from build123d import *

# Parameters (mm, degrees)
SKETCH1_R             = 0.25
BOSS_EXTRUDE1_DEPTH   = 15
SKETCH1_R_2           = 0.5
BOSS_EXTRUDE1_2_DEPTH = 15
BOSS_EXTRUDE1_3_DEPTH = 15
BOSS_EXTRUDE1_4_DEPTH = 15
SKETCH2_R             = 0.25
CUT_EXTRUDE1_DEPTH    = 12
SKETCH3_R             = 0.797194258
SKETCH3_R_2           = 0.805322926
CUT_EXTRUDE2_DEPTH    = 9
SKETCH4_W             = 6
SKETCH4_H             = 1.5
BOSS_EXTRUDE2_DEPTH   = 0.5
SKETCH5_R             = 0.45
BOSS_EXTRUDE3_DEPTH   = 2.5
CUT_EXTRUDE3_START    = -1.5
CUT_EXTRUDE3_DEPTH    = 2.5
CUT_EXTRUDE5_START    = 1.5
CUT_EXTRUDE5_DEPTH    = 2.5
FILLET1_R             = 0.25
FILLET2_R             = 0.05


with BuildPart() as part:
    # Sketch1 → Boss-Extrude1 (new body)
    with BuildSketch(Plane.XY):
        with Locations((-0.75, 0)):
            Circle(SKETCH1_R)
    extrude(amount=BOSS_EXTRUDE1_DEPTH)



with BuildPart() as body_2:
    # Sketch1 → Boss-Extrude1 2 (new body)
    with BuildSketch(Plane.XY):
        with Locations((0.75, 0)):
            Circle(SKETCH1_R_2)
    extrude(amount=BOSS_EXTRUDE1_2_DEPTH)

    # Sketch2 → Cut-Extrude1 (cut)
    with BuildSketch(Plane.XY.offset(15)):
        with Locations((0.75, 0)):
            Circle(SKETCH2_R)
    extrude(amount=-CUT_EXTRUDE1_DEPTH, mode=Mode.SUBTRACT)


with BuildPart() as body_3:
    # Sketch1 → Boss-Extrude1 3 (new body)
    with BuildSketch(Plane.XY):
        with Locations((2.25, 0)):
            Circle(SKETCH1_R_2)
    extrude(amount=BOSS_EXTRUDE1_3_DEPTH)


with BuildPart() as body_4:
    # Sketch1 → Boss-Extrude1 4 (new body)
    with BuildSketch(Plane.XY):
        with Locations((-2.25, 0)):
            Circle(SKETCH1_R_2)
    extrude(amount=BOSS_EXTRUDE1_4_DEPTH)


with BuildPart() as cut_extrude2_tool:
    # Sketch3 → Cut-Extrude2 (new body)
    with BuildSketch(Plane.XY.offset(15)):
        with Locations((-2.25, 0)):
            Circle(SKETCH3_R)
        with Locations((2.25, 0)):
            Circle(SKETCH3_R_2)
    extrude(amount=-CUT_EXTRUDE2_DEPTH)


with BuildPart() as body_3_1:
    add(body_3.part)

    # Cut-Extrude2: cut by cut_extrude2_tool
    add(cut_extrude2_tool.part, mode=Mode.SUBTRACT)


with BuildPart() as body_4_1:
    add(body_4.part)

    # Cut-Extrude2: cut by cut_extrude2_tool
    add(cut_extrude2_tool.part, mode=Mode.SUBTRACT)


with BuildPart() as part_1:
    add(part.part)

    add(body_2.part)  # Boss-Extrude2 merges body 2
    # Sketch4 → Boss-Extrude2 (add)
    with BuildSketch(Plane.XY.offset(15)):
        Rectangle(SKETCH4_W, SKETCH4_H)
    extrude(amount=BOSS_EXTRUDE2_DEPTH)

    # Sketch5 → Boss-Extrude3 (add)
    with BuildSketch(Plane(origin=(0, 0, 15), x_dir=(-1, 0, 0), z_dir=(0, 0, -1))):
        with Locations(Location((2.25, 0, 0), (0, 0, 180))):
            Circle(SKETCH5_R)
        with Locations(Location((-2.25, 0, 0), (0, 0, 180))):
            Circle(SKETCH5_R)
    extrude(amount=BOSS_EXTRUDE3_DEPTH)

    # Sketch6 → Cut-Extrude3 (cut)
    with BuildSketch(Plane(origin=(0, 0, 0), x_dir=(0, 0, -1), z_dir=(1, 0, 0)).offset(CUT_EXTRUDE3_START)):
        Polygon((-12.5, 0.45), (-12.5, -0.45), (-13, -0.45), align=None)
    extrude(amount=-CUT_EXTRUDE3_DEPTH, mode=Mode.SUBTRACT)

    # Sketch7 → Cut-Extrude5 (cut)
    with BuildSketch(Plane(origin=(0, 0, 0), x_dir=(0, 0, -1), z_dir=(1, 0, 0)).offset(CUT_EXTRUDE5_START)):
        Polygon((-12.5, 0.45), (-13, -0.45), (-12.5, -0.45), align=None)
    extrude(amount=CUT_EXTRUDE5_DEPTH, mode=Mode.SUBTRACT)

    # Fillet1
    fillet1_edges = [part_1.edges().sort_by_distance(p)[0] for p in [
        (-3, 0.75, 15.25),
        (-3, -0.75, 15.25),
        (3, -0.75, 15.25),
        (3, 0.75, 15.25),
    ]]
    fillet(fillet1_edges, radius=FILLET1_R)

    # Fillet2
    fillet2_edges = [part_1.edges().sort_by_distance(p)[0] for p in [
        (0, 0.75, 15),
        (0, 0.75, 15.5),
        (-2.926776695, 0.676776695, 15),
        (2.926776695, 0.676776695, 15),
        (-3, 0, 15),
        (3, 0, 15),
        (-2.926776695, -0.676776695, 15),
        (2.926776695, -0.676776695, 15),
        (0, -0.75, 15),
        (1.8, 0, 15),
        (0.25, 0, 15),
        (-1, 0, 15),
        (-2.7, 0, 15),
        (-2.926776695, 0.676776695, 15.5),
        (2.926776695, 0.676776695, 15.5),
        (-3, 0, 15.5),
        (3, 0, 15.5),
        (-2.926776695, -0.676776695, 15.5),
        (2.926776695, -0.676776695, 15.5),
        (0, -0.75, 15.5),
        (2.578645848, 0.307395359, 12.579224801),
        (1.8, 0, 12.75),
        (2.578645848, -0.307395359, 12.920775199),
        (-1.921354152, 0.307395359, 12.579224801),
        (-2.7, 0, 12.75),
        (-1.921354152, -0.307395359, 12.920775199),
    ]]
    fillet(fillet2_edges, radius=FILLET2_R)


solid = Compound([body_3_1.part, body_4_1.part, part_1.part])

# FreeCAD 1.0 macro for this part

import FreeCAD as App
import Part
import Sketcher

V = App.Vector
Q = App.Units.Quantity


def edges_at(feature, points):
    """Names of the edges that pass closest to the given points."""
    edges = feature.Shape.Edges
    near = lambda p: min(range(len(edges)), key=lambda i: edges[i].distToShape(Part.Vertex(*p))[0])
    return sorted({f"Edge{near(p) + 1}" for p in points})


def add_polygon(sketch, points):
    """Adds a closed chain of lines whose ends are joined by coincident constraints."""
    first, n = sketch.GeometryCount, len(points)
    for a, b in zip(points, points[1:] + points[:1]):
        sketch.addGeometry(Part.LineSegment(App.Vector(*a, 0), App.Vector(*b, 0)), False)
    for i in range(n):
        sketch.addConstraint(Sketcher.Constraint("Coincident", first + i, 2, first + (i + 1) % n, 1))

doc = App.newDocument("Part")
body = doc.addObject("PartDesign::Body", "Body")

sketch1 = body.newObject("Sketcher::SketchObject", "Sketch")
sketch1.AttachmentSupport = (doc.getObject("XY_Plane"), [""])
sketch1.MapMode = "FlatFace"
sketch1.addGeometry(Part.Circle(V(-0.75, 0, 0), V(0, 0, 1), 0.25), False)
sketch1.addConstraint(Sketcher.Constraint("PointOnObject", 0, 3, -1))
sketch1.addConstraint(Sketcher.Constraint("Diameter", 0, Q("0.5 mm")))
sketch1.addConstraint(Sketcher.Constraint("DistanceX", 0, 3, -1, 1, Q("0.75 mm")))
pad1 = body.newObject("PartDesign::Pad", "Pad")
pad1.Profile = sketch1
pad1.Length = 15
body2 = doc.addObject("PartDesign::Body", "Body001")

sketch2 = body2.newObject("Sketcher::SketchObject", "Sketch001")
sketch2.AttachmentSupport = (doc.getObject("XY_Plane001"), [""])
sketch2.MapMode = "FlatFace"
sketch2.addGeometry(Part.Circle(V(0.75, 0, 0), V(0, 0, 1), 0.5), False)
sketch2.addConstraint(Sketcher.Constraint("PointOnObject", 0, 3, -1))
sketch2.addConstraint(Sketcher.Constraint("Diameter", 0, Q("1 mm")))
sketch2.addConstraint(Sketcher.Constraint("DistanceX", -1, 1, 0, 3, Q("0.75 mm")))
pad2 = body2.newObject("PartDesign::Pad", "Pad001")
pad2.Profile = sketch2
pad2.Length = 15

sketch3 = body2.newObject("Sketcher::SketchObject", "Sketch002")
sketch3.AttachmentSupport = (doc.getObject("XY_Plane001"), [""])
sketch3.MapMode = "FlatFace"
sketch3.AttachmentOffset = App.Placement(V(0, 0, 15), App.Rotation())
sketch3.addGeometry(Part.Circle(V(0.75, 0, 0), V(0, 0, 1), 0.25), False)
sketch3.addConstraint(Sketcher.Constraint("PointOnObject", 0, 3, -1))
sketch3.addConstraint(Sketcher.Constraint("Diameter", 0, Q("0.5 mm")))
sketch3.addConstraint(Sketcher.Constraint("DistanceX", -1, 1, 0, 3, Q("0.75 mm")))
pocket1 = body2.newObject("PartDesign::Pocket", "Pocket")
pocket1.Profile = sketch3
pocket1.Length = 12
body3 = doc.addObject("PartDesign::Body", "Body002")

sketch4 = body3.newObject("Sketcher::SketchObject", "Sketch003")
sketch4.AttachmentSupport = (doc.getObject("XY_Plane002"), [""])
sketch4.MapMode = "FlatFace"
sketch4.addGeometry(Part.Circle(V(2.25, 0, 0), V(0, 0, 1), 0.5), False)
sketch4.addConstraint(Sketcher.Constraint("PointOnObject", 0, 3, -1))
sketch4.addConstraint(Sketcher.Constraint("Diameter", 0, Q("1 mm")))
sketch4.addConstraint(Sketcher.Constraint("DistanceX", -1, 1, 0, 3, Q("2.25 mm")))
pad3 = body3.newObject("PartDesign::Pad", "Pad002")
pad3.Profile = sketch4
pad3.Length = 15
body4 = doc.addObject("PartDesign::Body", "Body003")

sketch5 = body4.newObject("Sketcher::SketchObject", "Sketch004")
sketch5.AttachmentSupport = (doc.getObject("XY_Plane003"), [""])
sketch5.MapMode = "FlatFace"
sketch5.addGeometry(Part.Circle(V(-2.25, 0, 0), V(0, 0, 1), 0.5), False)
sketch5.addConstraint(Sketcher.Constraint("PointOnObject", 0, 3, -1))
sketch5.addConstraint(Sketcher.Constraint("Diameter", 0, Q("1 mm")))
sketch5.addConstraint(Sketcher.Constraint("DistanceX", 0, 3, -1, 1, Q("2.25 mm")))
pad4 = body4.newObject("PartDesign::Pad", "Pad003")
pad4.Profile = sketch5
pad4.Length = 15
body5 = doc.addObject("PartDesign::Body", "Body004")
body5.AllowCompound = True

sketch6 = body5.newObject("Sketcher::SketchObject", "Sketch005")
sketch6.AttachmentSupport = (doc.getObject("XY_Plane004"), [""])
sketch6.MapMode = "FlatFace"
sketch6.AttachmentOffset = App.Placement(V(0, 0, 15), App.Rotation())
sketch6.addGeometry(Part.Circle(V(-2.25, 0, 0), V(0, 0, 1), 0.797194), False)
sketch6.addGeometry(Part.Circle(V(2.25, 0, 0), V(0, 0, 1), 0.805323), False)
sketch6.addConstraint(Sketcher.Constraint("Symmetric", 0, 3, 1, 3, -1, 1))
sketch6.addConstraint(Sketcher.Constraint("PointOnObject", 0, 3, -1))
sketch6.addConstraint(Sketcher.Constraint("DistanceX", 0, 3, 1, 3, Q("4.5 mm")))
sketch6.addConstraint(Sketcher.Constraint("Diameter", 0, Q("1.594389 mm")))
sketch6.addConstraint(Sketcher.Constraint("Diameter", 1, Q("1.610646 mm")))
pad5 = body5.newObject("PartDesign::Pad", "Pad004")
pad5.Profile = sketch6
pad5.Length = 9
pad5.Reversed = True
doc.recompute()

body6 = doc.addObject("PartDesign::Body", "Body005")
body6.BaseFeature = body5
boolean = body3.newObject("PartDesign::Boolean", "Boolean")
boolean.Type = "Cut"
boolean.addObjects([body6])
doc.recompute()

boolean2 = body4.newObject("PartDesign::Boolean", "Boolean001")
boolean2.Type = "Cut"
boolean2.addObjects([body5])
body.AllowCompound = True
doc.recompute()

boolean3 = body.newObject("PartDesign::Boolean", "Boolean002")
boolean3.Type = "Fuse"
boolean3.addObjects([body2])

sketch7 = body.newObject("Sketcher::SketchObject", "Sketch006")
sketch7.AttachmentSupport = (doc.getObject("XY_Plane"), [""])
sketch7.MapMode = "FlatFace"
sketch7.AttachmentOffset = App.Placement(V(0, 0, 15), App.Rotation())
add_polygon(sketch7, [(-3, 0.75), (-3, -0.75), (3, -0.75), (3, 0.75)])
sketch7.addConstraint(Sketcher.Constraint("Vertical", 0))
sketch7.addConstraint(Sketcher.Constraint("Horizontal", 1))
sketch7.addConstraint(Sketcher.Constraint("Vertical", 2))
sketch7.addConstraint(Sketcher.Constraint("Horizontal", 3))
sketch7.addConstraint(Sketcher.Constraint("Symmetric", 0, 2, 2, 2, -1, 1))
sketch7.addConstraint(Sketcher.Constraint("DistanceX", 1, 1, 1, 2, Q("6 mm")))
sketch7.addConstraint(Sketcher.Constraint("DistanceY", 0, 2, 0, 1, Q("1.5 mm")))
pad6 = body.newObject("PartDesign::Pad", "Pad005")
pad6.Profile = sketch7
pad6.Length = 0.5

sketch8 = body.newObject("Sketcher::SketchObject", "Sketch007")
sketch8.AttachmentSupport = (doc.getObject("XY_Plane"), [""])
sketch8.MapMode = "FlatFace"
sketch8.AttachmentOffset = App.Placement(V(0, 0, 15), App.Rotation())
sketch8.addGeometry(Part.Circle(V(-2.25, 0, 0), V(0, 0, 1), 0.45), False)
sketch8.addGeometry(Part.Circle(V(2.25, 0, 0), V(0, 0, 1), 0.45), False)
sketch8.addConstraint(Sketcher.Constraint("Equal", 0, 1))
sketch8.addConstraint(Sketcher.Constraint("Symmetric", 0, 3, 1, 3, -1, 1))
sketch8.addConstraint(Sketcher.Constraint("PointOnObject", 0, 3, -1))
sketch8.addConstraint(Sketcher.Constraint("Diameter", 0, Q("0.9 mm")))
sketch8.addConstraint(Sketcher.Constraint("DistanceX", 0, 3, 1, 3, Q("4.5 mm")))
pad7 = body.newObject("PartDesign::Pad", "Pad006")
pad7.Profile = sketch8
pad7.Length = 2.5
pad7.Reversed = True

sketch9 = body.newObject("Sketcher::SketchObject", "Sketch008")
sketch9.AttachmentSupport = (doc.getObject("YZ_Plane"), [""])
sketch9.MapMode = "FlatFace"
sketch9.AttachmentOffset = App.Placement(V(0, 0, -1.5), App.Rotation())
add_polygon(sketch9, [(-0.45, 12.5), (0.45, 12.5), (-0.45, 13)])
sketch9.addConstraint(Sketcher.Constraint("Horizontal", 0))
sketch9.addConstraint(Sketcher.Constraint("Vertical", 2))
sketch9.addConstraint(Sketcher.Constraint("DistanceX", 0, 1, 0, 2, Q("0.9 mm")))
sketch9.addConstraint(Sketcher.Constraint("DistanceY", 2, 2, 2, 1, Q("0.5 mm")))
sketch9.addConstraint(Sketcher.Constraint("DistanceY", -1, 1, 1, 2, Q("13 mm")))
sketch9.addConstraint(Sketcher.Constraint("DistanceX", -1, 1, 0, 2, Q("0.45 mm")))
pocket2 = body.newObject("PartDesign::Pocket", "Pocket001")
pocket2.Profile = sketch9
pocket2.Length = 2.5

sketch10 = body.newObject("Sketcher::SketchObject", "Sketch009")
sketch10.AttachmentSupport = (doc.getObject("YZ_Plane"), [""])
sketch10.MapMode = "FlatFace"
sketch10.AttachmentOffset = App.Placement(V(0, 0, 1.5), App.Rotation())
add_polygon(sketch10, [(0.45, 12.5), (-0.45, 13), (-0.45, 12.5)])
sketch10.addConstraint(Sketcher.Constraint("Vertical", 1))
sketch10.addConstraint(Sketcher.Constraint("Horizontal", 2))
sketch10.addConstraint(Sketcher.Constraint("DistanceX", 2, 1, 2, 2, Q("0.9 mm")))
sketch10.addConstraint(Sketcher.Constraint("DistanceY", 1, 2, 1, 1, Q("0.5 mm")))
sketch10.addConstraint(Sketcher.Constraint("DistanceY", -1, 1, 0, 2, Q("13 mm")))
sketch10.addConstraint(Sketcher.Constraint("DistanceX", 0, 2, -1, 1, Q("0.45 mm")))
pocket3 = body.newObject("PartDesign::Pocket", "Pocket002")
pocket3.Profile = sketch10
pocket3.Length = 2.5
pocket3.Reversed = True
doc.recompute()

fillet = body.newObject("PartDesign::Fillet", "Fillet")
fillet.Base = (pocket3, edges_at(pocket3, [
    (-3, 0.75, 15.25),
    (-3, -0.75, 15.25),
    (3, -0.75, 15.25),
    (3, 0.75, 15.25),
]))
fillet.Radius = 0.25
doc.recompute()

fillet2 = body.newObject("PartDesign::Fillet", "Fillet001")
fillet2.Base = (fillet, edges_at(fillet, [
    (0, 0.75, 15),
    (0, 0.75, 15.5),
    (-2.927, 0.677, 15),
    (2.927, 0.677, 15),
    (-3, 0, 15),
    (3, 0, 15),
    (-2.927, -0.677, 15),
    (2.927, -0.677, 15),
    (0, -0.75, 15),
    (1.8, 0, 15),
    (0.25, 0, 15),
    (-1, 0, 15),
    (-2.7, 0, 15),
    (-2.927, 0.677, 15.5),
    (2.927, 0.677, 15.5),
    (-3, 0, 15.5),
    (3, 0, 15.5),
    (-2.927, -0.677, 15.5),
    (2.927, -0.677, 15.5),
    (0, -0.75, 15.5),
    (2.579, 0.307, 12.579),
    (1.25, 0, 7.5),
    (2.579, -0.307, 12.921),
    (-1.921, 0.307, 12.579),
    (-2.7, 0, 12.75),
    (-1.921, -0.307, 12.921),
]))
fillet2.Radius = 0.05

doc.recompute()
